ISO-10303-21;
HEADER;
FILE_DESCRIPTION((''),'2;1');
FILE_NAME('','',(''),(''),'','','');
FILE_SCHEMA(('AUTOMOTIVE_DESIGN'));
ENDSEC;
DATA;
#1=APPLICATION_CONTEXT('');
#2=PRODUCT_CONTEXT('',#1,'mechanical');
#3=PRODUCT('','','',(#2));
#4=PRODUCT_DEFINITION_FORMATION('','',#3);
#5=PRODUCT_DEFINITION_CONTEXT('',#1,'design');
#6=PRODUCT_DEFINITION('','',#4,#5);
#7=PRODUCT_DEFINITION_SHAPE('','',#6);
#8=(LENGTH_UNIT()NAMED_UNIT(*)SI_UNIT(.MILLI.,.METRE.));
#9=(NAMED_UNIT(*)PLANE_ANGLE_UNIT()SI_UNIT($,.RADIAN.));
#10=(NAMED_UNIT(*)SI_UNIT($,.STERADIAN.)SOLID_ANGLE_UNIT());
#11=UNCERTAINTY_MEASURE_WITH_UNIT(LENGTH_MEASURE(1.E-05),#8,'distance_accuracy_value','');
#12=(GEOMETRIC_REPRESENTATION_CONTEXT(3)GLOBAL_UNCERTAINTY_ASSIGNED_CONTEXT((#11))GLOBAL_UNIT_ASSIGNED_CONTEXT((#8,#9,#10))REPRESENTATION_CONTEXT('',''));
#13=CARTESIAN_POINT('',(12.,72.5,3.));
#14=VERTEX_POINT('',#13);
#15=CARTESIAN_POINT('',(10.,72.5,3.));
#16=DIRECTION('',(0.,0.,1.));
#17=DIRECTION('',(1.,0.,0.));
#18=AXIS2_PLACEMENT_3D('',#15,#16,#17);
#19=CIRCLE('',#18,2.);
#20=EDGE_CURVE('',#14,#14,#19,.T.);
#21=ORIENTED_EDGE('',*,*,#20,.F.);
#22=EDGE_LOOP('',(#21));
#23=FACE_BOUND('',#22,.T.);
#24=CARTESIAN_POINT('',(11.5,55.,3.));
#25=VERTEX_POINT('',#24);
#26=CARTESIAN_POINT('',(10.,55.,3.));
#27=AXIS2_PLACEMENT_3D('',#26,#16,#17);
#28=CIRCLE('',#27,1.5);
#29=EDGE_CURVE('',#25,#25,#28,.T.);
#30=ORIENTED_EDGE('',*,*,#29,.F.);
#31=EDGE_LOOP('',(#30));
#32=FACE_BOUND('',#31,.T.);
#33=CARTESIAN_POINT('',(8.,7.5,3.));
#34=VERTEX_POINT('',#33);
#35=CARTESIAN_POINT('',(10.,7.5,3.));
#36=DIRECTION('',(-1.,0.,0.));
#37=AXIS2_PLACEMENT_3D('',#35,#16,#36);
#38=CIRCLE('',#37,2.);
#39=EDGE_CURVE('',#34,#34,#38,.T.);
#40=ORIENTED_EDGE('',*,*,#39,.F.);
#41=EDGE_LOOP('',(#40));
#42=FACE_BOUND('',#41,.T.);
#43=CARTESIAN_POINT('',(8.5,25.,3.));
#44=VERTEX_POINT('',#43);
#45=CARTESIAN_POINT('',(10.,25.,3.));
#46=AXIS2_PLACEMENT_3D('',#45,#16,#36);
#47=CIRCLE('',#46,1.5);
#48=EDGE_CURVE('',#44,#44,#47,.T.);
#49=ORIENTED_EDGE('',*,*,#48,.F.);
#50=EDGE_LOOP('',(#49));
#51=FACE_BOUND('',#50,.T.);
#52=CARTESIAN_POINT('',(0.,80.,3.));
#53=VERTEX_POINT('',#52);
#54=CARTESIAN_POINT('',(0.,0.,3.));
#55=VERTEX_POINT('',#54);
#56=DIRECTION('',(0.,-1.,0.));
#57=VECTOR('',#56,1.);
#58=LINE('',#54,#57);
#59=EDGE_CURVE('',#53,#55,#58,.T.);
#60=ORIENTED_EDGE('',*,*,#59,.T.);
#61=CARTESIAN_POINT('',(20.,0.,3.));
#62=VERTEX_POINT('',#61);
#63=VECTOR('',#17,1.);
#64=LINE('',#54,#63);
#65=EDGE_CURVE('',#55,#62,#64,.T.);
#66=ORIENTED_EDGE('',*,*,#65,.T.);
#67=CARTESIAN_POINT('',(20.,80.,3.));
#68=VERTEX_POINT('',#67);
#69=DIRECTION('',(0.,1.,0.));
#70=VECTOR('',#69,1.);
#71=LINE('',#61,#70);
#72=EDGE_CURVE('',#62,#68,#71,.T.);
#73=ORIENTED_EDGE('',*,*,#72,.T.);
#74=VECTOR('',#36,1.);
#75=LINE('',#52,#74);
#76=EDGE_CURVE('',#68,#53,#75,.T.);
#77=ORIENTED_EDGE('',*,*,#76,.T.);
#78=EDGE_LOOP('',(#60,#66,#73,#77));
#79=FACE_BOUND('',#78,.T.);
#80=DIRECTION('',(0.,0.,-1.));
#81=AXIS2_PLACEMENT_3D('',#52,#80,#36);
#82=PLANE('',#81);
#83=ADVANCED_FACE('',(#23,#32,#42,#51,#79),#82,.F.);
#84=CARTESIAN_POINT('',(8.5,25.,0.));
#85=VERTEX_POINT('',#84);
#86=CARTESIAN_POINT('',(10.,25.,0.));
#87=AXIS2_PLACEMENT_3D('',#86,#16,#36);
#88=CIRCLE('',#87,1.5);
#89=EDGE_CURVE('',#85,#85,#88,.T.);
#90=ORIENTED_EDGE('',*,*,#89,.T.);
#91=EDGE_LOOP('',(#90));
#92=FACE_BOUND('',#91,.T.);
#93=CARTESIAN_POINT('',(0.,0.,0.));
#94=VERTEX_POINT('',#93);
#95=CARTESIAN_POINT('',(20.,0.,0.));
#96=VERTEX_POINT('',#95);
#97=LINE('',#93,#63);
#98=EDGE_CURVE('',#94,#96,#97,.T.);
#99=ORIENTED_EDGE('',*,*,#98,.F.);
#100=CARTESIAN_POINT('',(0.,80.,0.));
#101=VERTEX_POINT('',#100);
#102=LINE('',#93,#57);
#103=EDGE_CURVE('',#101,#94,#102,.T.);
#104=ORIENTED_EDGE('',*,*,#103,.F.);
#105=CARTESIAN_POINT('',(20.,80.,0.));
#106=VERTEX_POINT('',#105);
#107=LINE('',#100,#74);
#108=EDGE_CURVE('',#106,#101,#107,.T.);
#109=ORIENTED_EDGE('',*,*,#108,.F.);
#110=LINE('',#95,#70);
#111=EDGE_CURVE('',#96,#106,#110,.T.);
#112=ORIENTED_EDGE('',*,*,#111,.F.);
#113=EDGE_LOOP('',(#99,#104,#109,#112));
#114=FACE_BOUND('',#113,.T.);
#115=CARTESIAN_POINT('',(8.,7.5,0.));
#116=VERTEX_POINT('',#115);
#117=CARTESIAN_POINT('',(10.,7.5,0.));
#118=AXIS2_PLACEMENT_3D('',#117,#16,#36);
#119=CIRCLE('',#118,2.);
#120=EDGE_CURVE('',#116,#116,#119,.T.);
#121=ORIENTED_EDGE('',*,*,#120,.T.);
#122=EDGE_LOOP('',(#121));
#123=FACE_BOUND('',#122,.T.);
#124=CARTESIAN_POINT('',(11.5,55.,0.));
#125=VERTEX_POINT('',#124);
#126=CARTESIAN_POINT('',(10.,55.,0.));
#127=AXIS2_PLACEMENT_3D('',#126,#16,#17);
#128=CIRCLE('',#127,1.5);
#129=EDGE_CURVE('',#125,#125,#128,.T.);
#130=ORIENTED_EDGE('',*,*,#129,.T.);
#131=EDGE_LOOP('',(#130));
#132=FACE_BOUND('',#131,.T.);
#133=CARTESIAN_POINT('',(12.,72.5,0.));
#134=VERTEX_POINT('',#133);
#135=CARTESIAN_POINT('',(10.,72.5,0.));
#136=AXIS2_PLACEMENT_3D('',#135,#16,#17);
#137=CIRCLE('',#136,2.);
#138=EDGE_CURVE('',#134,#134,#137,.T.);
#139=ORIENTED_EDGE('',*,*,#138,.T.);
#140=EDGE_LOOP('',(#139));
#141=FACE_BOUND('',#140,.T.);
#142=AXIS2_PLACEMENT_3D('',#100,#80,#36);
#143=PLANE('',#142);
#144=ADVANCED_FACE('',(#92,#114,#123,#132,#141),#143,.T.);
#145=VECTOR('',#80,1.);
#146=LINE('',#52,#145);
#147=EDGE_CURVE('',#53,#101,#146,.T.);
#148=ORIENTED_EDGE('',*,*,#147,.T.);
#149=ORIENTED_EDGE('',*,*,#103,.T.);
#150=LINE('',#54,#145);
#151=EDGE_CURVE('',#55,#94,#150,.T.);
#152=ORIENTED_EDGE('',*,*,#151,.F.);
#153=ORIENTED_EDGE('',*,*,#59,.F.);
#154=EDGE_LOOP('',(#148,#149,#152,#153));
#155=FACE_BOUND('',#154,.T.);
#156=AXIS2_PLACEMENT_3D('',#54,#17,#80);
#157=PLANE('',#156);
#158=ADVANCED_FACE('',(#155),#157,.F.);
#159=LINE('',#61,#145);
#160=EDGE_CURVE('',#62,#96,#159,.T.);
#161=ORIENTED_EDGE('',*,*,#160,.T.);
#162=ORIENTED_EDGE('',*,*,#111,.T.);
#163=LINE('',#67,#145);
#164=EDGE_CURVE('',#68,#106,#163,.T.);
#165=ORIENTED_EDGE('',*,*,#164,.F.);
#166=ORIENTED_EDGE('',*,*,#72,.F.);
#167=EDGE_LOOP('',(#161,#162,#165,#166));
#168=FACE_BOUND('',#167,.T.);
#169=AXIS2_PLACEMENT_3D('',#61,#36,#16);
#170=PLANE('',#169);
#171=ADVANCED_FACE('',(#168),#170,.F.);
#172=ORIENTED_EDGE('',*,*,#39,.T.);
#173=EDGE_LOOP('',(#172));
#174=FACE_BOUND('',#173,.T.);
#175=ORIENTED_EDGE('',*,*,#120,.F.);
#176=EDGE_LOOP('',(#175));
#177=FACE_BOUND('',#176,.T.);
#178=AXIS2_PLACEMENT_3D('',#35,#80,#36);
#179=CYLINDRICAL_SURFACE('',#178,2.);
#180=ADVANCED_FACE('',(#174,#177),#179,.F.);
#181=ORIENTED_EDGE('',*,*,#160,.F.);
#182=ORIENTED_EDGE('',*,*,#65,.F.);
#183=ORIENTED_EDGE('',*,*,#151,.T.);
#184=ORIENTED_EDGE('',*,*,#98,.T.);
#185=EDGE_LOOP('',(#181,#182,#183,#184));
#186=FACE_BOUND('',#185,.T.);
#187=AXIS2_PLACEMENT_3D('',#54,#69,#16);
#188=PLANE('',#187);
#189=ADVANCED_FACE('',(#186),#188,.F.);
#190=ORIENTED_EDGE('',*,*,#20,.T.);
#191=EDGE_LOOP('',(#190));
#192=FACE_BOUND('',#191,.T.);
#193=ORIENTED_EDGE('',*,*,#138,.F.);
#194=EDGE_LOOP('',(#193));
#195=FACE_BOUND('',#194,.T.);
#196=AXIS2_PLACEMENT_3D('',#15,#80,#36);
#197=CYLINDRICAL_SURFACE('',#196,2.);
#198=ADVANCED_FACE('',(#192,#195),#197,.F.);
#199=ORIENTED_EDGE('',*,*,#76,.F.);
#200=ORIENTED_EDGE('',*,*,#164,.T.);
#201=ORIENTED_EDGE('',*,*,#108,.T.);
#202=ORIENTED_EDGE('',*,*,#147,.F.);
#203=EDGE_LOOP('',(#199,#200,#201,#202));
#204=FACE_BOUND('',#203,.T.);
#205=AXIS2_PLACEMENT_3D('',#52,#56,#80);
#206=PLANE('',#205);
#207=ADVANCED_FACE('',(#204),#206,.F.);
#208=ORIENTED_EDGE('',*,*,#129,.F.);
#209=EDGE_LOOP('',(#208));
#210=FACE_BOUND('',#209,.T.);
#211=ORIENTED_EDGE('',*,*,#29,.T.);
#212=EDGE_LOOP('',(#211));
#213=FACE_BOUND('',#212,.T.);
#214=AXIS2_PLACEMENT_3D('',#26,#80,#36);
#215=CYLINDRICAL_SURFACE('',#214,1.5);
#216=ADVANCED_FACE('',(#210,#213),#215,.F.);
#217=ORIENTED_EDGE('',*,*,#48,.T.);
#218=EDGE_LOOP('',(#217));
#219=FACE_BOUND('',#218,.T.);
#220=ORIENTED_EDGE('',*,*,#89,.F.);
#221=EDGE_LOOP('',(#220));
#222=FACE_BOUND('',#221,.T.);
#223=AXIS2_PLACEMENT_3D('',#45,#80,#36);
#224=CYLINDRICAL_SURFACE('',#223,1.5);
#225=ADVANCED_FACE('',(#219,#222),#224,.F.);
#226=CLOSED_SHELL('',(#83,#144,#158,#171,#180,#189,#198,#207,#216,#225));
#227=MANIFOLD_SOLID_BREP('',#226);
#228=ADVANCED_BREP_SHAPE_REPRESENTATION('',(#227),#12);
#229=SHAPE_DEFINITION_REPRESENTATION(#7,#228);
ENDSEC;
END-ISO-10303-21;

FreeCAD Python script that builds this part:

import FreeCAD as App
import Part
import Sketcher

V = App.Vector
Q = App.Units.Quantity


def add_polygon(sketch, points):
    """Adds a closed chain of lines whose ends are joined by coincident constraints."""
    first, n = sketch.GeometryCount, len(points)
    for a, b in zip(points, points[1:] + points[:1]):
        sketch.addGeometry(Part.LineSegment(App.Vector(*a, 0), App.Vector(*b, 0)), False)
    for i in range(n):
        sketch.addConstraint(Sketcher.Constraint("Coincident", first + i, 2, first + (i + 1) % n, 1))

doc = App.newDocument("Part")
body = doc.addObject("PartDesign::Body", "Body")

# Sketch on XY plane
sketch1 = body.newObject("Sketcher::SketchObject", "Sketch")
sketch1.AttachmentSupport = (doc.getObject("XY_Plane"), [""])
sketch1.MapMode = "FlatFace"
add_polygon(sketch1, [(0, 80), (0, 0), (20, 0), (20, 80)])  # lines 0-3
sketch1.addGeometry(Part.Circle(V(10, 7.5, 0), V(0, 0, 1), 2), False)  # 4
sketch1.addGeometry(Part.Circle(V(10, 25, 0), V(0, 0, 1), 1.5), False)  # 5
sketch1.addGeometry(Part.Circle(V(10, 55, 0), V(0, 0, 1), 1.5), False)  # 6
sketch1.addGeometry(Part.Circle(V(10, 72.5, 0), V(0, 0, 1), 2), False)  # 7
sketch1.addConstraint(Sketcher.Constraint("Vertical", 0))
sketch1.addConstraint(Sketcher.Constraint("Horizontal", 1))
sketch1.addConstraint(Sketcher.Constraint("Vertical", 2))
sketch1.addConstraint(Sketcher.Constraint("Horizontal", 3))
sketch1.addConstraint(Sketcher.Constraint("Coincident", 0, 2, -1, 1))
sketch1.addConstraint(Sketcher.Constraint("Equal", 5, 6))
sketch1.addConstraint(Sketcher.Constraint("Equal", 4, 7))
sketch1.addConstraint(Sketcher.Constraint("Vertical", 4, 3, 5, 3))
sketch1.addConstraint(Sketcher.Constraint("Vertical", 5, 3, 6, 3))
sketch1.addConstraint(Sketcher.Constraint("Vertical", 6, 3, 7, 3))
sketch1.addConstraint(Sketcher.Constraint("Diameter", 4, Q("4 mm")))
sketch1.addConstraint(Sketcher.Constraint("Diameter", 5, Q("3 mm")))
sketch1.addConstraint(Sketcher.Constraint("DistanceX", 1, 1, 1, 2, Q("20 mm")))
sketch1.addConstraint(Sketcher.Constraint("DistanceY", 0, 2, 0, 1, Q("80 mm")))
sketch1.addConstraint(Sketcher.Constraint("DistanceX", -1, 1, 4, 3, Q("10 mm")))
sketch1.addConstraint(Sketcher.Constraint("DistanceY", -1, 1, 5, 3, Q("25 mm")))
sketch1.addConstraint(Sketcher.Constraint("DistanceY", -1, 1, 6, 3, Q("55 mm")))
sketch1.addConstraint(Sketcher.Constraint("DistanceY", 4, 3, 7, 3, Q("65 mm")))
sketch1.addConstraint(Sketcher.Constraint("DistanceY", -1, 1, 4, 3, Q("7.5 mm")))
pad1 = body.newObject("PartDesign::Pad", "Pad")
pad1.Profile = sketch1
pad1.Length = 3

doc.recompute()
